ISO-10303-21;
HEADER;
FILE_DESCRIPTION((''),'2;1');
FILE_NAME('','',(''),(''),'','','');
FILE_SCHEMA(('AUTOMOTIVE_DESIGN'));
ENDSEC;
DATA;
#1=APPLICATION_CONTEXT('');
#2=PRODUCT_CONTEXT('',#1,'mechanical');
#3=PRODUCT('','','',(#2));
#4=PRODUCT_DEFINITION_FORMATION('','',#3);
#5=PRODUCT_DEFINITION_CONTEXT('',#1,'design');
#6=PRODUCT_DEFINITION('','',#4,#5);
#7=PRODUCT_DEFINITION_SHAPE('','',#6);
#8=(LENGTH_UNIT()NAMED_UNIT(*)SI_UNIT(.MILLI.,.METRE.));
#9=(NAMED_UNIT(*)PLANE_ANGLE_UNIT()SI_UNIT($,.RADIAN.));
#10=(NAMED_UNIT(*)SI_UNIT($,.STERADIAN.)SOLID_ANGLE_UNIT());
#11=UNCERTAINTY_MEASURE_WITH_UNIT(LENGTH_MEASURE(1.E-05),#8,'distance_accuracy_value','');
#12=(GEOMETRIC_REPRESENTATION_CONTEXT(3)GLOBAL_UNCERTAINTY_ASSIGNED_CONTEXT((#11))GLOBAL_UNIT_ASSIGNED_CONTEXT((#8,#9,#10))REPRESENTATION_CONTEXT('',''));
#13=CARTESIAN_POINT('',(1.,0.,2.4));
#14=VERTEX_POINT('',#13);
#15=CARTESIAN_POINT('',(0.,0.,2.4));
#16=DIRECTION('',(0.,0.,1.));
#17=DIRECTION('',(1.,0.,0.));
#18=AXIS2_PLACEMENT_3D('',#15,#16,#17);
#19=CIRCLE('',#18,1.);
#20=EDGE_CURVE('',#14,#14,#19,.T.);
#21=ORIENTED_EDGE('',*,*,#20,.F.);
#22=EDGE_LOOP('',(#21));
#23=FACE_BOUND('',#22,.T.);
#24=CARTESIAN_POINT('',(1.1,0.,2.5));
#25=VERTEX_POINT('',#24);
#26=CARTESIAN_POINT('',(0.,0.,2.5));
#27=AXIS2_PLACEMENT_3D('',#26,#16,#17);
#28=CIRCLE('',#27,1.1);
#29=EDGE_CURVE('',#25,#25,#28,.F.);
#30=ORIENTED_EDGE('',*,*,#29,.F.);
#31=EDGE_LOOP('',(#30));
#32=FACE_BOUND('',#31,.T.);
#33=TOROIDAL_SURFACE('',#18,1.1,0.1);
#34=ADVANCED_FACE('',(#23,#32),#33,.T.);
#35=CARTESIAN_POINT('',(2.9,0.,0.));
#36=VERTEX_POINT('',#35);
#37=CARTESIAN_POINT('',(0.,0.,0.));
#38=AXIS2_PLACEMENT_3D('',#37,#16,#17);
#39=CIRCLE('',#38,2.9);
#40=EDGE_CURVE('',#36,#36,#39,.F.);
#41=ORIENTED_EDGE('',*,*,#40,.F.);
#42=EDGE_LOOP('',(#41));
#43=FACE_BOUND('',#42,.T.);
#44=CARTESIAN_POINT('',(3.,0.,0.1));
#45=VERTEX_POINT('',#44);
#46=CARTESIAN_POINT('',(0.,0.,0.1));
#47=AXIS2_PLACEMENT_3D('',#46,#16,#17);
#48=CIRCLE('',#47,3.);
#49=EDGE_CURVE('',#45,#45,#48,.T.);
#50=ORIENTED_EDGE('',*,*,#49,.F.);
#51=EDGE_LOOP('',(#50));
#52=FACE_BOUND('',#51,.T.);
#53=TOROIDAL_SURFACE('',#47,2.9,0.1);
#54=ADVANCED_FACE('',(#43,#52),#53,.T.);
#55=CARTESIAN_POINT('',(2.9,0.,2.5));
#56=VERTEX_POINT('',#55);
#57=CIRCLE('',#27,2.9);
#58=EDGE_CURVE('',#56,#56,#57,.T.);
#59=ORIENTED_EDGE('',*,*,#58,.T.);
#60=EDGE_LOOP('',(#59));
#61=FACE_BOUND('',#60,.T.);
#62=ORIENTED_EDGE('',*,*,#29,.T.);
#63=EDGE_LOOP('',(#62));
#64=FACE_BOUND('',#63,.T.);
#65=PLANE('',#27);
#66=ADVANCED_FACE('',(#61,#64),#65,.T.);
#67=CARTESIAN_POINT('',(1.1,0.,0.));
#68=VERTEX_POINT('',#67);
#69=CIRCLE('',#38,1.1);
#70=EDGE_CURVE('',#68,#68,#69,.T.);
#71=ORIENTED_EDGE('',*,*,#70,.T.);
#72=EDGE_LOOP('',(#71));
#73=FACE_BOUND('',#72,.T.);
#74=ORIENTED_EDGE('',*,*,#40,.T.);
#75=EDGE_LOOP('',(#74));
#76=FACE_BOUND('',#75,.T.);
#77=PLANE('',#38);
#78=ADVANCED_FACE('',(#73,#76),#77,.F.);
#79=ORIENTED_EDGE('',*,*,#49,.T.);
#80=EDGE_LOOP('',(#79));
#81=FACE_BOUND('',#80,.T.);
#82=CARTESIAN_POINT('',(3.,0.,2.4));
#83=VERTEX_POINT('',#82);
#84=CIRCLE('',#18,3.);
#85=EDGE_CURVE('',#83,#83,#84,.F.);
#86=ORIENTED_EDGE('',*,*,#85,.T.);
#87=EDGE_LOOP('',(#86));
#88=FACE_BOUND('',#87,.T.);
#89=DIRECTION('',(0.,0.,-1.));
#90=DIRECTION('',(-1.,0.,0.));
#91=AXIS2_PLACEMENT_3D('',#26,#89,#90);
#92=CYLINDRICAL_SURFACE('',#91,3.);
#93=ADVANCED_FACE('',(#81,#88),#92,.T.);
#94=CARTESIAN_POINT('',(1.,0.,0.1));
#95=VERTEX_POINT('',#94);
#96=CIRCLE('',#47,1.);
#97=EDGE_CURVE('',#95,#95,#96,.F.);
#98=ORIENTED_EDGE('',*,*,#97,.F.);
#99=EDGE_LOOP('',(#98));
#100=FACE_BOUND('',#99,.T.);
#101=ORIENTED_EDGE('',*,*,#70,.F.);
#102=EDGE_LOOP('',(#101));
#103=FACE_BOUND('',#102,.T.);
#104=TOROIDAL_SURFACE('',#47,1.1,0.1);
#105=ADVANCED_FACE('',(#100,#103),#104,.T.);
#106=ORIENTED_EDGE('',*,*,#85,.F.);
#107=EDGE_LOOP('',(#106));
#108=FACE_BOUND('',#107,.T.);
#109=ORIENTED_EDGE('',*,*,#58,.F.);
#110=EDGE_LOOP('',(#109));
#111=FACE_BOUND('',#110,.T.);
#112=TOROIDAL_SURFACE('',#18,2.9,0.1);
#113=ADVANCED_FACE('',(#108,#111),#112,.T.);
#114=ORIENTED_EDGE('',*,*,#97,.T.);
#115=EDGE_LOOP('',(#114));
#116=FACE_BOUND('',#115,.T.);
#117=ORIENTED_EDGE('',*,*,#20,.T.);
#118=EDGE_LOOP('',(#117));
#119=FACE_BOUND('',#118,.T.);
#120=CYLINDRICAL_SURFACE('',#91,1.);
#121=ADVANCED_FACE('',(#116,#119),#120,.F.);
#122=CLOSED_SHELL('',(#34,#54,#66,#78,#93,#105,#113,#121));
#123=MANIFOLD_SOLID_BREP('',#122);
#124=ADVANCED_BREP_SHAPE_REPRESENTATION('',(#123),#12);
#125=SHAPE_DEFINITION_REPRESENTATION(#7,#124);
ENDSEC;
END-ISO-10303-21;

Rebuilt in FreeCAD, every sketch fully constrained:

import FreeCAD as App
import Part
import Sketcher

V = App.Vector


def edges_at(feature, points):
    """Names of the edges that pass closest to the given points."""
    edges = feature.Shape.Edges
    near = lambda p: min(range(len(edges)), key=lambda i: edges[i].distToShape(Part.Vertex(*p))[0])
    return sorted({f"Edge{near(p) + 1}" for p in points})

doc = App.newDocument("Part")
params = doc.addObject("Spreadsheet::Sheet", "Params")
for row, (alias, value) in enumerate([
    ("sketch1_diameter", "6 mm"),
    ("sketch1_diameter2", "2 mm"),
    ("pad1_length", "2.5 mm"),
    ("fillet_radius", "0.1 mm"),
    ("fillet2_radius", "0.1 mm"),
], start=1):
    params.set(f"A{row}", alias)
    params.set(f"B{row}", "=" + value)
    params.setAlias(f"B{row}", alias)

body = doc.addObject("PartDesign::Body", "Body")

# Sketch on XY plane
sketch1 = body.newObject("Sketcher::SketchObject", "Sketch")
sketch1.AttachmentSupport = (doc.getObject("XY_Plane"), [""])
sketch1.MapMode = "FlatFace"
sketch1.addGeometry([
    Part.Circle(V(0, 0, 0), V(0, 0, 1), 3),
    Part.Circle(V(0, 0, 0), V(0, 0, 1), 1),
], False)
sketch1.addConstraint([
    Sketcher.Constraint("Coincident", 0, 3, -1, 1),
    Sketcher.Constraint("Coincident", 1, 3, -1, 1),
    Sketcher.Constraint("Diameter", 0, 6.0),
    Sketcher.Constraint("Diameter", 1, 2.0),
])
sketch1.setExpression("Constraints[2]", "Params.sketch1_diameter")
sketch1.setExpression("Constraints[3]", "Params.sketch1_diameter2")
pad1 = body.newObject("PartDesign::Pad", "Pad")
pad1.Profile = sketch1
pad1.setExpression("Length", "Params.pad1_length")
doc.recompute()

fillet = body.newObject("PartDesign::Fillet", "Fillet")
fillet.Base = (pad1, edges_at(pad1, [(-3, 0, 2.5)]))
fillet.setExpression("Radius", "Params.fillet_radius")
doc.recompute()

fillet2 = body.newObject("PartDesign::Fillet", "Fillet001")
fillet2.Base = (fillet, edges_at(fillet, [(-3, 0, 0), (-1, 0, 0), (-1, 0, 2.5)]))
fillet2.setExpression("Radius", "Params.fillet2_radius")

doc.recompute()
